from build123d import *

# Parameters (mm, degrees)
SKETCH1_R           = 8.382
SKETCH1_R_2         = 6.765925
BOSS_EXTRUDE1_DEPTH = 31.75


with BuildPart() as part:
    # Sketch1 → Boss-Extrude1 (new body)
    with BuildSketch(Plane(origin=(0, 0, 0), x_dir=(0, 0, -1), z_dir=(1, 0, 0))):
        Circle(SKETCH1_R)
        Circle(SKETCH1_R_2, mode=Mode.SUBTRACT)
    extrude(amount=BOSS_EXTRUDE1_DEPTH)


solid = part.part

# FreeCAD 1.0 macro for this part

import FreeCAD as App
import Part
import Sketcher
Q = App.Units.Quantity

doc = App.newDocument("Part")
params = doc.addObject("Spreadsheet::Sheet", "Params")
for row, (alias, value) in enumerate([
    ("sketch1_diameter", "0.66 in"),
    ("pad1_length", "1.25 in"),
], start=1):
    params.set(f"A{row}", alias)
    params.set(f"B{row}", "=" + value)
    params.setAlias(f"B{row}", alias)

body = doc.addObject("PartDesign::Body", "Body")

# Sketch on YZ plane
sketch1 = body.newObject("Sketcher::SketchObject", "Sketch")
sketch1.AttachmentSupport = (doc.getObject("YZ_Plane"), [""])
sketch1.MapMode = "FlatFace"
sketch1.addGeometry(Part.Circle(App.Vector(0, 0, 0), App.Vector(0, 0, 1), 8.382), False)
sketch1.addGeometry(Part.Circle(App.Vector(0, 0, 0), App.Vector(0, 0, 1), 6.765925), False)
sketch1.addConstraint(Sketcher.Constraint("Coincident", 0, 3, -1, 1))
sketch1.addConstraint(Sketcher.Constraint("Coincident", 1, 3, -1, 1))
sketch1.addConstraint(Sketcher.Constraint("Diameter", 0, Q("0.66 in")))
sketch1.addConstraint(Sketcher.Constraint("Diameter", 1, Q("13.53185 mm")))
sketch1.setExpression("Constraints[2]", "Params.sketch1_diameter")
pad1 = body.newObject("PartDesign::Pad", "Pad")
pad1.Profile = sketch1
pad1.setExpression("Length", "Params.pad1_length")

doc.recompute()
